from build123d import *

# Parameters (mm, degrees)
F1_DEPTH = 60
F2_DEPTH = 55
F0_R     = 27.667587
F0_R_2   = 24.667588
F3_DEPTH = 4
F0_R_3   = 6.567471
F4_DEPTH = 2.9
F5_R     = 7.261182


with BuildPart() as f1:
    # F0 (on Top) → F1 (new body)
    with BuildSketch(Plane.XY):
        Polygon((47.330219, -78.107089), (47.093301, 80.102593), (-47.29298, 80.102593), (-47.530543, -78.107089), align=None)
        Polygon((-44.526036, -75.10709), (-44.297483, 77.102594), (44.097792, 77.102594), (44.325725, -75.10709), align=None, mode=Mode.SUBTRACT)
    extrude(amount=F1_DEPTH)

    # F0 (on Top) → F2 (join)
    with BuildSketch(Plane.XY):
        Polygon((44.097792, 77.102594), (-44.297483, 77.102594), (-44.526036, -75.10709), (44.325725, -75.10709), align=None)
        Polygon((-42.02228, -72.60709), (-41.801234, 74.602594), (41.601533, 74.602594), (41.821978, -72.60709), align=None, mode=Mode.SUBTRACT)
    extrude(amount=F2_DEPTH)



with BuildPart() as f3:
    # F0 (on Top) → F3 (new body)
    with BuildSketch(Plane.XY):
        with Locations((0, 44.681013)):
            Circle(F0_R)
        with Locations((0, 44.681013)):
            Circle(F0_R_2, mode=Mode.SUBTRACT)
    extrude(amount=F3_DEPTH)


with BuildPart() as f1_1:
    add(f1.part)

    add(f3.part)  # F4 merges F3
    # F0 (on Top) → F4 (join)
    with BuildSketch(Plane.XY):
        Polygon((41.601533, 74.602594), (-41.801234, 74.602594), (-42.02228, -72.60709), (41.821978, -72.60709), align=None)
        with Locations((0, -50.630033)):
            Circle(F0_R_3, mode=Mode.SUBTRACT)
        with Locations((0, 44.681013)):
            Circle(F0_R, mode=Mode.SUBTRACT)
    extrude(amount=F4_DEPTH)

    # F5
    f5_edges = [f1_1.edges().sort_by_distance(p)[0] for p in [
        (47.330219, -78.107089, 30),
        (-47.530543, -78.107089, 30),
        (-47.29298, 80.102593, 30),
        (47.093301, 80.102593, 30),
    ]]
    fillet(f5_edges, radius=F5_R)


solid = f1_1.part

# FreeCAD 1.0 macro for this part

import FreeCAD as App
import Part
import Sketcher

V = App.Vector
Q = App.Units.Quantity


def edges_at(feature, points):
    """Names of the edges that pass closest to the given points."""
    edges = feature.Shape.Edges
    near = lambda p: min(range(len(edges)), key=lambda i: edges[i].distToShape(Part.Vertex(*p))[0])
    return sorted({f"Edge{near(p) + 1}" for p in points})


def add_polygon(sketch, points):
    """Adds a closed chain of lines whose ends are joined by coincident constraints."""
    first, n = sketch.GeometryCount, len(points)
    for a, b in zip(points, points[1:] + points[:1]):
        sketch.addGeometry(Part.LineSegment(App.Vector(*a, 0), App.Vector(*b, 0)), False)
    for i in range(n):
        sketch.addConstraint(Sketcher.Constraint("Coincident", first + i, 2, first + (i + 1) % n, 1))

doc = App.newDocument("Part")
body = doc.addObject("PartDesign::Body", "Body")

# Sketch on XY plane
sketch1 = doc.addObject("Sketcher::SketchObject", "Sketch")
body.addObject(sketch1)
sketch1.AttachmentSupport = (doc.XY_Plane, [""])
sketch1.MapMode = "FlatFace"
add_polygon(sketch1, [(47.330219, -78.107089), (47.093301, 80.102593), (-47.29298, 80.102593), (-47.530543, -78.107089)])  # lines 0-3
add_polygon(sketch1, [(44.325725, -75.10709), (-44.526036, -75.10709), (-44.297483, 77.102594), (44.097792, 77.102594)])  # lines 4-7
sketch1.addConstraint([
    Sketcher.Constraint("Horizontal", 1),
    Sketcher.Constraint("Horizontal", 3),
    Sketcher.Constraint("Horizontal", 4),
    Sketcher.Constraint("Horizontal", 6),
    Sketcher.Constraint("Parallel", 2, 5),
    Sketcher.Constraint("Parallel", 0, 7),
    Sketcher.Constraint("DistanceY", 2, 2, 4, 2, Q("2.999999 mm")),
    Sketcher.Constraint("DistanceY", 5, 2, 1, 2, Q("2.999999 mm")),
    Sketcher.Constraint("DistanceX", 1, 2, 1, 1, Q("94.386281 mm")),
    Sketcher.Constraint("DistanceX", 3, 1, 3, 2, Q("94.860762 mm")),
    Sketcher.Constraint("DistanceX", 4, 2, 4, 1, Q("88.851761 mm")),
    Sketcher.Constraint("DistanceX", -1, 1, 0, 2, Q("47.093301 mm")),
    Sketcher.Constraint("DistanceX", 1, 2, 3, 2, Q("94.623199 mm")),
    Sketcher.Constraint("DistanceX", 5, 2, 3, 2, Q("91.627702 mm")),
    Sketcher.Constraint("Distance", 0, Q("158.209859 mm")),
    Sketcher.Constraint("DistanceY", 2, 2, -1, 1, Q("78.107089 mm")),
])
pad1 = doc.addObject("PartDesign::Pad", "Pad")
body.addObject(pad1)
pad1.Profile = sketch1
pad1.Length = 60

# Sketch on XY plane
sketch2 = doc.addObject("Sketcher::SketchObject", "Sketch001")
body.addObject(sketch2)
sketch2.AttachmentSupport = (doc.XY_Plane, [""])
sketch2.MapMode = "FlatFace"
add_polygon(sketch2, [(44.097792, 77.102594), (-44.297483, 77.102594), (-44.526036, -75.10709), (44.325725, -75.10709)])  # lines 0-3
add_polygon(sketch2, [(41.821978, -72.60709), (-42.02228, -72.60709), (-41.801234, 74.602594), (41.601533, 74.602594)])  # lines 4-7
sketch2.addConstraint([
    Sketcher.Constraint("Horizontal", 0),
    Sketcher.Constraint("Horizontal", 2),
    Sketcher.Constraint("Horizontal", 4),
    Sketcher.Constraint("Horizontal", 6),
    Sketcher.Constraint("Parallel", 1, 5),
    Sketcher.Constraint("Parallel", 3, 7),
    Sketcher.Constraint("DistanceY", 1, 2, 4, 2, Q("2.5 mm")),
    Sketcher.Constraint("DistanceY", 5, 2, 0, 2, Q("2.5 mm")),
    Sketcher.Constraint("DistanceX", 2, 1, 2, 2, Q("88.851761 mm")),
    Sketcher.Constraint("DistanceX", 1, 2, 5, 2, Q("2.724802 mm")),
    Sketcher.Constraint("Distance", 5, Q("147.20985 mm")),
    Sketcher.Constraint("DistanceX", 0, 2, 0, 1, Q("88.395275 mm")),
    Sketcher.Constraint("DistanceX", 4, 2, 4, 1, Q("83.844258 mm")),
    Sketcher.Constraint("DistanceY", 1, 2, -1, 1, Q("75.10709 mm")),
    Sketcher.Constraint("DistanceX", -1, 1, 3, 2, Q("44.097792 mm")),
    Sketcher.Constraint("DistanceX", 4, 2, -1, 1, Q("42.02228 mm")),
])
pad2 = doc.addObject("PartDesign::Pad", "Pad001")
body.addObject(pad2)
pad2.Profile = sketch2
pad2.Length = 55
body2 = doc.addObject("PartDesign::Body", "Body001")

# Sketch on XY plane
sketch3 = doc.addObject("Sketcher::SketchObject", "Sketch002")
body2.addObject(sketch3)
sketch3.AttachmentSupport = (doc.getObject("XY_Plane001"), [""])
sketch3.MapMode = "FlatFace"
sketch3.addGeometry([
    Part.Circle(V(0, 44.681013, 0), V(0, 0, 1), 27.667587),
    Part.Circle(V(0, 44.681013, 0), V(0, 0, 1), 24.667588),
], False)
sketch3.addConstraint([
    Sketcher.Constraint("Coincident", 1, 3, 0, 3),
    Sketcher.Constraint("PointOnObject", 0, 3, -2),
    Sketcher.Constraint("Diameter", 0, Q("55.335174 mm")),
    Sketcher.Constraint("Diameter", 1, Q("49.335176 mm")),
    Sketcher.Constraint("DistanceY", -1, 1, 0, 3, Q("44.681013 mm")),
])
pad3 = doc.addObject("PartDesign::Pad", "Pad002")
body2.addObject(pad3)
pad3.Profile = sketch3
pad3.Length = 4
body.AllowCompound = True
doc.recompute()

boolean = doc.addObject("PartDesign::Boolean", "Boolean")
body.addObject(boolean)
boolean.Type = "Fuse"
boolean.addObjects([body2])

# Sketch on XY plane
sketch4 = doc.addObject("Sketcher::SketchObject", "Sketch003")
body.addObject(sketch4)
sketch4.AttachmentSupport = (doc.XY_Plane, [""])
sketch4.MapMode = "FlatFace"
add_polygon(sketch4, [(41.601533, 74.602594), (-41.801234, 74.602594), (-42.02228, -72.60709), (41.821978, -72.60709)])  # lines 0-3
sketch4.addGeometry(Part.Circle(V(0, -50.630033, 0), V(0, 0, 1), 6.567471), False)  # 4
sketch4.addGeometry(Part.Circle(V(0, 44.681013, 0), V(0, 0, 1), 27.667587), False)  # 5
sketch4.addConstraint([
    Sketcher.Constraint("Horizontal", 0),
    Sketcher.Constraint("Horizontal", 2),
    Sketcher.Constraint("PointOnObject", 4, 3, -2),
    Sketcher.Constraint("PointOnObject", 5, 3, -2),
    Sketcher.Constraint("Diameter", 4, Q("13.134942 mm")),
    Sketcher.Constraint("Diameter", 5, Q("55.335174 mm")),
    Sketcher.Constraint("Distance", 1, Q("147.20985 mm")),
    Sketcher.Constraint("DistanceX", 0, 2, 0, 1, Q("83.402767 mm")),
    Sketcher.Constraint("DistanceX", 2, 1, 2, 2, Q("83.844258 mm")),
    Sketcher.Constraint("DistanceX", 1, 2, -1, 1, Q("42.02228 mm")),
    Sketcher.Constraint("DistanceY", 1, 2, -1, 1, Q("72.60709 mm")),
    Sketcher.Constraint("DistanceY", 5, 3, 0, 2, Q("29.921581 mm")),
    Sketcher.Constraint("DistanceX", 0, 2, 2, 2, Q("83.623212 mm")),
    Sketcher.Constraint("DistanceY", 4, 3, -1, 1, Q("50.630033 mm")),
])
pad4 = doc.addObject("PartDesign::Pad", "Pad003")
body.addObject(pad4)
pad4.Profile = sketch4
pad4.Length = 2.9
doc.recompute()

fillet = doc.addObject("PartDesign::Fillet", "Fillet")
body.addObject(fillet)
fillet.Base = (pad4, edges_at(pad4, [
    (47.33, -78.107, 30),
    (-47.531, -78.107, 30),
    (-47.293, 80.103, 30),
    (47.093, 80.103, 30),
]))
fillet.Radius = 7.261182

doc.recompute()
